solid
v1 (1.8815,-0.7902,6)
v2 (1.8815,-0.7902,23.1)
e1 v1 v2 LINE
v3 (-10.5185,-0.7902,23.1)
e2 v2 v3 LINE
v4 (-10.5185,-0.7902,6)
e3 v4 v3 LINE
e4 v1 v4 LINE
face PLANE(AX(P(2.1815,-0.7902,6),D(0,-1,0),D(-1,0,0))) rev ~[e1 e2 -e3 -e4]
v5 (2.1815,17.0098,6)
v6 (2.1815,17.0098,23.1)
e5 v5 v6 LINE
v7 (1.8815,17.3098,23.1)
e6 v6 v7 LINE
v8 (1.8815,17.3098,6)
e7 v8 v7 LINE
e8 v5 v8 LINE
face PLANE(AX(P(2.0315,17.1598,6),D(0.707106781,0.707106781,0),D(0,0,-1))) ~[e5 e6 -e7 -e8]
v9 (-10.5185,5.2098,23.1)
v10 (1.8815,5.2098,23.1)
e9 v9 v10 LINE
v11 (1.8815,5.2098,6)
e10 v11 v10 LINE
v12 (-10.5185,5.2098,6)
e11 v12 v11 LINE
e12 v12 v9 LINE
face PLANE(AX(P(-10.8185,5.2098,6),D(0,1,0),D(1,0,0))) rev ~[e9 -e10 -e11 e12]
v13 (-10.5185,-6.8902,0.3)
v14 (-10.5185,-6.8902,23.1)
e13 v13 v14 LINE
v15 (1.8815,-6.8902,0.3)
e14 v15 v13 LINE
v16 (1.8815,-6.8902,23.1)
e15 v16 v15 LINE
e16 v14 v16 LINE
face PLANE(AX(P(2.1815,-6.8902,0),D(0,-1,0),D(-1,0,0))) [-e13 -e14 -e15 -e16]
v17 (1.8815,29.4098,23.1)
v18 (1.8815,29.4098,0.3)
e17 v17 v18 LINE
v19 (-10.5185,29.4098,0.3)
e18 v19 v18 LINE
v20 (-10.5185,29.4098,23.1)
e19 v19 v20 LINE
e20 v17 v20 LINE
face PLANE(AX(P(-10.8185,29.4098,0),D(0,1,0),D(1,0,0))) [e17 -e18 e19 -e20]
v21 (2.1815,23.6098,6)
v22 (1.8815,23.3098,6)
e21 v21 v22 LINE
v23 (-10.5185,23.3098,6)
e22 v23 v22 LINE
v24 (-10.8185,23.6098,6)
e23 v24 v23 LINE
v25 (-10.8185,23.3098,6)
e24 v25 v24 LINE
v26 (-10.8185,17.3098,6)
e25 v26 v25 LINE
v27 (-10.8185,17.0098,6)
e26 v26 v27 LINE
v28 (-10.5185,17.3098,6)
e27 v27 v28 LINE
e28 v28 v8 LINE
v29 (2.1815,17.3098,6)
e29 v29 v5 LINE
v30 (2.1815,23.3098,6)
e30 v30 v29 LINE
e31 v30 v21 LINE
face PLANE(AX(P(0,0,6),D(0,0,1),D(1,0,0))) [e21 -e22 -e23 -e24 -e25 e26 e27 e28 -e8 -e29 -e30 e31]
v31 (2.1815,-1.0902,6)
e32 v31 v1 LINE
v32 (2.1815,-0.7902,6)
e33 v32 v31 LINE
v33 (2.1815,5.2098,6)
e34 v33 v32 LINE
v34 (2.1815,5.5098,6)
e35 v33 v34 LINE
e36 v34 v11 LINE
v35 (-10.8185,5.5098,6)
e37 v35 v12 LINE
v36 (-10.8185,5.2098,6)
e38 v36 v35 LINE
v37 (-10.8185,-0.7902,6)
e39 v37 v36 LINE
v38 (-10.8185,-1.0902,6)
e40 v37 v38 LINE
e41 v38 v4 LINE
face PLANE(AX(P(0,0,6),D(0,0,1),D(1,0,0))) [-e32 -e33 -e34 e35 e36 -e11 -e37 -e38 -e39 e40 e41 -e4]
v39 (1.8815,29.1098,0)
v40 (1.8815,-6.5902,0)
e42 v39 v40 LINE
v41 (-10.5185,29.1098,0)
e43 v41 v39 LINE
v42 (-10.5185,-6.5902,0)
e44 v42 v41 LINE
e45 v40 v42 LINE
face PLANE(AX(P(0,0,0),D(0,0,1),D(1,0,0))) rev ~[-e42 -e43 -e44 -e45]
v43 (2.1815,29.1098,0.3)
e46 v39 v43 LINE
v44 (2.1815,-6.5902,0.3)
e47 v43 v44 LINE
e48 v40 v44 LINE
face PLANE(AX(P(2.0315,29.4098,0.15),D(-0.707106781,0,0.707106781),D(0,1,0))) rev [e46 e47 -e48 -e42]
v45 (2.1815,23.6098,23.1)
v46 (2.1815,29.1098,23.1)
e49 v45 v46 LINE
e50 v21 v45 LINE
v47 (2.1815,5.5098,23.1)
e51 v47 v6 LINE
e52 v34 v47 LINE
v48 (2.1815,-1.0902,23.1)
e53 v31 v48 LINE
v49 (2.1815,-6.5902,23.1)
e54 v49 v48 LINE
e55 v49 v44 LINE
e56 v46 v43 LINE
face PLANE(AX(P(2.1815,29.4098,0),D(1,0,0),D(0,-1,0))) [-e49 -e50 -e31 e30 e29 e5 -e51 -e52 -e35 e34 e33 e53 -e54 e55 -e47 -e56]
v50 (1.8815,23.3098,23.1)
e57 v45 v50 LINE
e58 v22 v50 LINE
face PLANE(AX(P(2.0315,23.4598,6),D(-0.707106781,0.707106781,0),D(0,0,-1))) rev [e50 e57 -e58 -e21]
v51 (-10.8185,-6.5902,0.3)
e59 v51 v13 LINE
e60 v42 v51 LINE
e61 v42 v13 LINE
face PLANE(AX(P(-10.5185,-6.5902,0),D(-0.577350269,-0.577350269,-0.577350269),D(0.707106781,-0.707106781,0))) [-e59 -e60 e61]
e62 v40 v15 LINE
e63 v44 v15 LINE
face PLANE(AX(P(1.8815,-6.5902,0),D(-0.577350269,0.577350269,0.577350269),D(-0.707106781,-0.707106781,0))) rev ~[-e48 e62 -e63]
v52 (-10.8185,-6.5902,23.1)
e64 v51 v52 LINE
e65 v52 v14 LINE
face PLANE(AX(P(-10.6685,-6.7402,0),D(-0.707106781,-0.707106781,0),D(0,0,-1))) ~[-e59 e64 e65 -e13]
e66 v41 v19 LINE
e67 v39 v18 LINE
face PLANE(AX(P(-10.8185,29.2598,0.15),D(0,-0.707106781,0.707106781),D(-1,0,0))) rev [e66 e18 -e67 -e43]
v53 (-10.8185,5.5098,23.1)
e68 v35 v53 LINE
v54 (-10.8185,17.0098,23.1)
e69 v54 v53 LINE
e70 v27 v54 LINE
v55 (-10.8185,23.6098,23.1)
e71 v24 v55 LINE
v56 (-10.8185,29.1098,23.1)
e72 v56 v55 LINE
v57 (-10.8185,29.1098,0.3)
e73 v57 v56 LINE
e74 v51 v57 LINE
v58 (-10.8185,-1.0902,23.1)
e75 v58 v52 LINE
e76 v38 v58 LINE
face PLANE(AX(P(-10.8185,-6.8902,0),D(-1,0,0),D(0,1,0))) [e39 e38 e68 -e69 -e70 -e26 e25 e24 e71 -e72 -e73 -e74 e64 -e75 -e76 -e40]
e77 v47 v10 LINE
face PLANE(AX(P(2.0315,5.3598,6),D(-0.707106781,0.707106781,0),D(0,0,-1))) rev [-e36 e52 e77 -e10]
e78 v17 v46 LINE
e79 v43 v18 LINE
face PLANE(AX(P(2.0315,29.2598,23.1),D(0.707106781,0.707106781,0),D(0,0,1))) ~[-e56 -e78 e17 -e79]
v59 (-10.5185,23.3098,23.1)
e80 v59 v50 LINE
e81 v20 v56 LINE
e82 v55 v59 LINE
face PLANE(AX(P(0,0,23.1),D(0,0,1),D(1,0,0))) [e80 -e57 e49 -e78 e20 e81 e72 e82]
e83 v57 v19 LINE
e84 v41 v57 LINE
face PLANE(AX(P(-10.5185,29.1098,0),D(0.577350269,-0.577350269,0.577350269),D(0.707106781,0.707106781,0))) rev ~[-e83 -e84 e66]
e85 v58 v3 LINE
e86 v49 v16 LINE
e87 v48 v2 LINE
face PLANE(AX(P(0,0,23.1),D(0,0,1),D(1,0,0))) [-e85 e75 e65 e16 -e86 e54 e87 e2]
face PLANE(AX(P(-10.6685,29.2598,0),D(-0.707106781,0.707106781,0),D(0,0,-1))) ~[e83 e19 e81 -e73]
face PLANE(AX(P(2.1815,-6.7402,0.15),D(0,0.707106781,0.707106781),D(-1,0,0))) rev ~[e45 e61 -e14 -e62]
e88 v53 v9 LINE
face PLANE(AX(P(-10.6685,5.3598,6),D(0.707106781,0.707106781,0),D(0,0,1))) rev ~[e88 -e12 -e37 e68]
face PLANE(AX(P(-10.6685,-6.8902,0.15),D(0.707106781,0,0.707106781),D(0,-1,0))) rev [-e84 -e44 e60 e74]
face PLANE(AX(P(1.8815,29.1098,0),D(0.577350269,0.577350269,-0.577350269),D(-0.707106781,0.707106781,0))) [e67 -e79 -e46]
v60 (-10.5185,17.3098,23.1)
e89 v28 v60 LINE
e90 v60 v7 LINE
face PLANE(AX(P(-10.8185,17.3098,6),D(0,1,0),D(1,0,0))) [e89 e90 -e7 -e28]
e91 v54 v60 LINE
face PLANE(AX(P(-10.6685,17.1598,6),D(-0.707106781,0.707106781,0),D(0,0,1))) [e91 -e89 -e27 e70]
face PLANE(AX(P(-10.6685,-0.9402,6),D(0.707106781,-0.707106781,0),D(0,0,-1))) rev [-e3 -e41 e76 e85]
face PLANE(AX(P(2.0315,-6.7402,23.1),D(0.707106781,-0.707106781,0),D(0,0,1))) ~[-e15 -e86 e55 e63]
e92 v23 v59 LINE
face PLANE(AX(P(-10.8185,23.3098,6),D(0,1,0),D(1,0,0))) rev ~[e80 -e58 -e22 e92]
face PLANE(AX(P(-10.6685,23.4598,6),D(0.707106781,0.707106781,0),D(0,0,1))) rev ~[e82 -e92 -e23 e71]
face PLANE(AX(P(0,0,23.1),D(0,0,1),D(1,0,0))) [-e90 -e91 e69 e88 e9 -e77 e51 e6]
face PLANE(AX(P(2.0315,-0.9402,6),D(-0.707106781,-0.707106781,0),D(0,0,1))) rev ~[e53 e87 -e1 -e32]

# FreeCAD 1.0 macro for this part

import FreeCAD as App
import Part
import Sketcher

V = App.Vector
Q = App.Units.Quantity


def edges_at(feature, points):
    """Names of the edges that pass closest to the given points."""
    edges = feature.Shape.Edges
    near = lambda p: min(range(len(edges)), key=lambda i: edges[i].distToShape(Part.Vertex(*p))[0])
    return sorted({f"Edge{near(p) + 1}" for p in points})


def add_polygon(sketch, points):
    """Adds a closed chain of lines whose ends are joined by coincident constraints."""
    first, n = sketch.GeometryCount, len(points)
    for a, b in zip(points, points[1:] + points[:1]):
        sketch.addGeometry(Part.LineSegment(App.Vector(*a, 0), App.Vector(*b, 0)), False)
    for i in range(n):
        sketch.addConstraint(Sketcher.Constraint("Coincident", first + i, 2, first + (i + 1) % n, 1))

doc = App.newDocument("Part")
body = doc.addObject("PartDesign::Body", "Body")

# Sketch on XY plane
sketch1 = doc.addObject("Sketcher::SketchObject", "Sketch")
body.addObject(sketch1)
sketch1.AttachmentSupport = (doc.XY_Plane, [""])
sketch1.MapMode = "FlatFace"
add_polygon(sketch1, [(2, 29), (-11, 29), (-11, -7), (2, -7)])  # lines 0-3
sketch1.addConstraint(Sketcher.Constraint("Horizontal", 0))
sketch1.addConstraint(Sketcher.Constraint("Vertical", 1))
sketch1.addConstraint(Sketcher.Constraint("Horizontal", 2))
sketch1.addConstraint(Sketcher.Constraint("Vertical", 3))
sketch1.addConstraint(Sketcher.Constraint("DistanceX", 0, 2, 0, 1, Q("13 mm")))
sketch1.addConstraint(Sketcher.Constraint("DistanceY", 1, 2, 1, 1, Q("36.3 mm")))
sketch1.addConstraint(Sketcher.Constraint("DistanceX", 0, 2, -1, 1, Q("10.8185 mm")))
sketch1.addConstraint(Sketcher.Constraint("DistanceY", -1, 1, 0, 2, Q("29.4098 mm")))
pad1 = doc.addObject("PartDesign::Pad", "Pad")
body.addObject(pad1)
pad1.Profile = sketch1
pad1.Length = 6

# Sketch on XY plane
sketch2 = doc.addObject("Sketcher::SketchObject", "Sketch001")
body.addObject(sketch2)
sketch2.AttachmentSupport = (doc.XY_Plane, [""])
sketch2.MapMode = "FlatFace"
sketch2.AttachmentOffset = App.Placement(V(0, 0, 6), App.Rotation())
add_polygon(sketch2, [(2, 23), (2, 29), (-11, 29), (-11, 23)])  # lines 0-3
add_polygon(sketch2, [(2, 5), (2, 17), (-11, 17), (-11, 5)])  # lines 4-7
add_polygon(sketch2, [(2, -7), (2, -1), (-11, -1), (-11, -7)])  # lines 8-11
sketch2.addConstraint(Sketcher.Constraint("Vertical", 0))
sketch2.addConstraint(Sketcher.Constraint("Horizontal", 1))
sketch2.addConstraint(Sketcher.Constraint("Vertical", 2))
sketch2.addConstraint(Sketcher.Constraint("Horizontal", 3))
sketch2.addConstraint(Sketcher.Constraint("Vertical", 4))
sketch2.addConstraint(Sketcher.Constraint("Horizontal", 5))
sketch2.addConstraint(Sketcher.Constraint("Vertical", 6))
sketch2.addConstraint(Sketcher.Constraint("Horizontal", 7))
sketch2.addConstraint(Sketcher.Constraint("Vertical", 8))
sketch2.addConstraint(Sketcher.Constraint("Horizontal", 9))
sketch2.addConstraint(Sketcher.Constraint("Vertical", 10))
sketch2.addConstraint(Sketcher.Constraint("Horizontal", 11))
sketch2.addConstraint(Sketcher.Constraint("Vertical", 3, 2, 4, 2))
sketch2.addConstraint(Sketcher.Constraint("Vertical", 2, 2, 5, 2))
sketch2.addConstraint(Sketcher.Constraint("Vertical", 7, 2, 8, 2))
sketch2.addConstraint(Sketcher.Constraint("Vertical", 6, 2, 9, 2))
sketch2.addConstraint(Sketcher.Constraint("Equal", 2, 8))
sketch2.addConstraint(Sketcher.Constraint("DistanceY", 0, 1, 0, 2, Q("6.1 mm")))
sketch2.addConstraint(Sketcher.Constraint("DistanceY", 4, 1, 4, 2, Q("12.1 mm")))
sketch2.addConstraint(Sketcher.Constraint("DistanceY", 4, 2, 0, 2, Q("12.1 mm")))
sketch2.addConstraint(Sketcher.Constraint("DistanceY", 10, 2, 6, 2, Q("12.1 mm")))
sketch2.addConstraint(Sketcher.Constraint("DistanceX", 1, 2, 1, 1, Q("13 mm")))
sketch2.addConstraint(Sketcher.Constraint("DistanceX", -1, 1, 0, 2, Q("2.1815 mm")))
sketch2.addConstraint(Sketcher.Constraint("DistanceY", -1, 1, 0, 2, Q("29.4098 mm")))
pad2 = doc.addObject("PartDesign::Pad", "Pad001")
body.addObject(pad2)
pad2.Profile = sketch2
pad2.Length = 17.1
doc.recompute()

chamfer = doc.addObject("PartDesign::Chamfer", "Chamfer")
body.addObject(chamfer)
chamfer.Base = (pad2, edges_at(pad2, [
    (-10.819, 29.41, 11.55),
    (-10.819, 23.31, 14.55),
    (-10.819, 17.31, 14.55),
    (2.182, 17.31, 14.55),
    (2.182, 5.21, 14.55),
    (-10.819, 5.21, 14.55),
    (-10.819, -0.79, 14.55),
    (2.182, -0.79, 14.55),
    (-10.819, -6.89, 11.55),
    (2.182, -6.89, 11.55),
    (2.182, 29.41, 11.55),
    (2.182, 23.31, 14.55),
    (-10.819, 11.26, 0),
    (2.182, 11.26, 0),
    (-4.319, 29.41, 0),
    (-4.319, -6.89, 0),
]))
chamfer.Size = 0.3

doc.recompute()
